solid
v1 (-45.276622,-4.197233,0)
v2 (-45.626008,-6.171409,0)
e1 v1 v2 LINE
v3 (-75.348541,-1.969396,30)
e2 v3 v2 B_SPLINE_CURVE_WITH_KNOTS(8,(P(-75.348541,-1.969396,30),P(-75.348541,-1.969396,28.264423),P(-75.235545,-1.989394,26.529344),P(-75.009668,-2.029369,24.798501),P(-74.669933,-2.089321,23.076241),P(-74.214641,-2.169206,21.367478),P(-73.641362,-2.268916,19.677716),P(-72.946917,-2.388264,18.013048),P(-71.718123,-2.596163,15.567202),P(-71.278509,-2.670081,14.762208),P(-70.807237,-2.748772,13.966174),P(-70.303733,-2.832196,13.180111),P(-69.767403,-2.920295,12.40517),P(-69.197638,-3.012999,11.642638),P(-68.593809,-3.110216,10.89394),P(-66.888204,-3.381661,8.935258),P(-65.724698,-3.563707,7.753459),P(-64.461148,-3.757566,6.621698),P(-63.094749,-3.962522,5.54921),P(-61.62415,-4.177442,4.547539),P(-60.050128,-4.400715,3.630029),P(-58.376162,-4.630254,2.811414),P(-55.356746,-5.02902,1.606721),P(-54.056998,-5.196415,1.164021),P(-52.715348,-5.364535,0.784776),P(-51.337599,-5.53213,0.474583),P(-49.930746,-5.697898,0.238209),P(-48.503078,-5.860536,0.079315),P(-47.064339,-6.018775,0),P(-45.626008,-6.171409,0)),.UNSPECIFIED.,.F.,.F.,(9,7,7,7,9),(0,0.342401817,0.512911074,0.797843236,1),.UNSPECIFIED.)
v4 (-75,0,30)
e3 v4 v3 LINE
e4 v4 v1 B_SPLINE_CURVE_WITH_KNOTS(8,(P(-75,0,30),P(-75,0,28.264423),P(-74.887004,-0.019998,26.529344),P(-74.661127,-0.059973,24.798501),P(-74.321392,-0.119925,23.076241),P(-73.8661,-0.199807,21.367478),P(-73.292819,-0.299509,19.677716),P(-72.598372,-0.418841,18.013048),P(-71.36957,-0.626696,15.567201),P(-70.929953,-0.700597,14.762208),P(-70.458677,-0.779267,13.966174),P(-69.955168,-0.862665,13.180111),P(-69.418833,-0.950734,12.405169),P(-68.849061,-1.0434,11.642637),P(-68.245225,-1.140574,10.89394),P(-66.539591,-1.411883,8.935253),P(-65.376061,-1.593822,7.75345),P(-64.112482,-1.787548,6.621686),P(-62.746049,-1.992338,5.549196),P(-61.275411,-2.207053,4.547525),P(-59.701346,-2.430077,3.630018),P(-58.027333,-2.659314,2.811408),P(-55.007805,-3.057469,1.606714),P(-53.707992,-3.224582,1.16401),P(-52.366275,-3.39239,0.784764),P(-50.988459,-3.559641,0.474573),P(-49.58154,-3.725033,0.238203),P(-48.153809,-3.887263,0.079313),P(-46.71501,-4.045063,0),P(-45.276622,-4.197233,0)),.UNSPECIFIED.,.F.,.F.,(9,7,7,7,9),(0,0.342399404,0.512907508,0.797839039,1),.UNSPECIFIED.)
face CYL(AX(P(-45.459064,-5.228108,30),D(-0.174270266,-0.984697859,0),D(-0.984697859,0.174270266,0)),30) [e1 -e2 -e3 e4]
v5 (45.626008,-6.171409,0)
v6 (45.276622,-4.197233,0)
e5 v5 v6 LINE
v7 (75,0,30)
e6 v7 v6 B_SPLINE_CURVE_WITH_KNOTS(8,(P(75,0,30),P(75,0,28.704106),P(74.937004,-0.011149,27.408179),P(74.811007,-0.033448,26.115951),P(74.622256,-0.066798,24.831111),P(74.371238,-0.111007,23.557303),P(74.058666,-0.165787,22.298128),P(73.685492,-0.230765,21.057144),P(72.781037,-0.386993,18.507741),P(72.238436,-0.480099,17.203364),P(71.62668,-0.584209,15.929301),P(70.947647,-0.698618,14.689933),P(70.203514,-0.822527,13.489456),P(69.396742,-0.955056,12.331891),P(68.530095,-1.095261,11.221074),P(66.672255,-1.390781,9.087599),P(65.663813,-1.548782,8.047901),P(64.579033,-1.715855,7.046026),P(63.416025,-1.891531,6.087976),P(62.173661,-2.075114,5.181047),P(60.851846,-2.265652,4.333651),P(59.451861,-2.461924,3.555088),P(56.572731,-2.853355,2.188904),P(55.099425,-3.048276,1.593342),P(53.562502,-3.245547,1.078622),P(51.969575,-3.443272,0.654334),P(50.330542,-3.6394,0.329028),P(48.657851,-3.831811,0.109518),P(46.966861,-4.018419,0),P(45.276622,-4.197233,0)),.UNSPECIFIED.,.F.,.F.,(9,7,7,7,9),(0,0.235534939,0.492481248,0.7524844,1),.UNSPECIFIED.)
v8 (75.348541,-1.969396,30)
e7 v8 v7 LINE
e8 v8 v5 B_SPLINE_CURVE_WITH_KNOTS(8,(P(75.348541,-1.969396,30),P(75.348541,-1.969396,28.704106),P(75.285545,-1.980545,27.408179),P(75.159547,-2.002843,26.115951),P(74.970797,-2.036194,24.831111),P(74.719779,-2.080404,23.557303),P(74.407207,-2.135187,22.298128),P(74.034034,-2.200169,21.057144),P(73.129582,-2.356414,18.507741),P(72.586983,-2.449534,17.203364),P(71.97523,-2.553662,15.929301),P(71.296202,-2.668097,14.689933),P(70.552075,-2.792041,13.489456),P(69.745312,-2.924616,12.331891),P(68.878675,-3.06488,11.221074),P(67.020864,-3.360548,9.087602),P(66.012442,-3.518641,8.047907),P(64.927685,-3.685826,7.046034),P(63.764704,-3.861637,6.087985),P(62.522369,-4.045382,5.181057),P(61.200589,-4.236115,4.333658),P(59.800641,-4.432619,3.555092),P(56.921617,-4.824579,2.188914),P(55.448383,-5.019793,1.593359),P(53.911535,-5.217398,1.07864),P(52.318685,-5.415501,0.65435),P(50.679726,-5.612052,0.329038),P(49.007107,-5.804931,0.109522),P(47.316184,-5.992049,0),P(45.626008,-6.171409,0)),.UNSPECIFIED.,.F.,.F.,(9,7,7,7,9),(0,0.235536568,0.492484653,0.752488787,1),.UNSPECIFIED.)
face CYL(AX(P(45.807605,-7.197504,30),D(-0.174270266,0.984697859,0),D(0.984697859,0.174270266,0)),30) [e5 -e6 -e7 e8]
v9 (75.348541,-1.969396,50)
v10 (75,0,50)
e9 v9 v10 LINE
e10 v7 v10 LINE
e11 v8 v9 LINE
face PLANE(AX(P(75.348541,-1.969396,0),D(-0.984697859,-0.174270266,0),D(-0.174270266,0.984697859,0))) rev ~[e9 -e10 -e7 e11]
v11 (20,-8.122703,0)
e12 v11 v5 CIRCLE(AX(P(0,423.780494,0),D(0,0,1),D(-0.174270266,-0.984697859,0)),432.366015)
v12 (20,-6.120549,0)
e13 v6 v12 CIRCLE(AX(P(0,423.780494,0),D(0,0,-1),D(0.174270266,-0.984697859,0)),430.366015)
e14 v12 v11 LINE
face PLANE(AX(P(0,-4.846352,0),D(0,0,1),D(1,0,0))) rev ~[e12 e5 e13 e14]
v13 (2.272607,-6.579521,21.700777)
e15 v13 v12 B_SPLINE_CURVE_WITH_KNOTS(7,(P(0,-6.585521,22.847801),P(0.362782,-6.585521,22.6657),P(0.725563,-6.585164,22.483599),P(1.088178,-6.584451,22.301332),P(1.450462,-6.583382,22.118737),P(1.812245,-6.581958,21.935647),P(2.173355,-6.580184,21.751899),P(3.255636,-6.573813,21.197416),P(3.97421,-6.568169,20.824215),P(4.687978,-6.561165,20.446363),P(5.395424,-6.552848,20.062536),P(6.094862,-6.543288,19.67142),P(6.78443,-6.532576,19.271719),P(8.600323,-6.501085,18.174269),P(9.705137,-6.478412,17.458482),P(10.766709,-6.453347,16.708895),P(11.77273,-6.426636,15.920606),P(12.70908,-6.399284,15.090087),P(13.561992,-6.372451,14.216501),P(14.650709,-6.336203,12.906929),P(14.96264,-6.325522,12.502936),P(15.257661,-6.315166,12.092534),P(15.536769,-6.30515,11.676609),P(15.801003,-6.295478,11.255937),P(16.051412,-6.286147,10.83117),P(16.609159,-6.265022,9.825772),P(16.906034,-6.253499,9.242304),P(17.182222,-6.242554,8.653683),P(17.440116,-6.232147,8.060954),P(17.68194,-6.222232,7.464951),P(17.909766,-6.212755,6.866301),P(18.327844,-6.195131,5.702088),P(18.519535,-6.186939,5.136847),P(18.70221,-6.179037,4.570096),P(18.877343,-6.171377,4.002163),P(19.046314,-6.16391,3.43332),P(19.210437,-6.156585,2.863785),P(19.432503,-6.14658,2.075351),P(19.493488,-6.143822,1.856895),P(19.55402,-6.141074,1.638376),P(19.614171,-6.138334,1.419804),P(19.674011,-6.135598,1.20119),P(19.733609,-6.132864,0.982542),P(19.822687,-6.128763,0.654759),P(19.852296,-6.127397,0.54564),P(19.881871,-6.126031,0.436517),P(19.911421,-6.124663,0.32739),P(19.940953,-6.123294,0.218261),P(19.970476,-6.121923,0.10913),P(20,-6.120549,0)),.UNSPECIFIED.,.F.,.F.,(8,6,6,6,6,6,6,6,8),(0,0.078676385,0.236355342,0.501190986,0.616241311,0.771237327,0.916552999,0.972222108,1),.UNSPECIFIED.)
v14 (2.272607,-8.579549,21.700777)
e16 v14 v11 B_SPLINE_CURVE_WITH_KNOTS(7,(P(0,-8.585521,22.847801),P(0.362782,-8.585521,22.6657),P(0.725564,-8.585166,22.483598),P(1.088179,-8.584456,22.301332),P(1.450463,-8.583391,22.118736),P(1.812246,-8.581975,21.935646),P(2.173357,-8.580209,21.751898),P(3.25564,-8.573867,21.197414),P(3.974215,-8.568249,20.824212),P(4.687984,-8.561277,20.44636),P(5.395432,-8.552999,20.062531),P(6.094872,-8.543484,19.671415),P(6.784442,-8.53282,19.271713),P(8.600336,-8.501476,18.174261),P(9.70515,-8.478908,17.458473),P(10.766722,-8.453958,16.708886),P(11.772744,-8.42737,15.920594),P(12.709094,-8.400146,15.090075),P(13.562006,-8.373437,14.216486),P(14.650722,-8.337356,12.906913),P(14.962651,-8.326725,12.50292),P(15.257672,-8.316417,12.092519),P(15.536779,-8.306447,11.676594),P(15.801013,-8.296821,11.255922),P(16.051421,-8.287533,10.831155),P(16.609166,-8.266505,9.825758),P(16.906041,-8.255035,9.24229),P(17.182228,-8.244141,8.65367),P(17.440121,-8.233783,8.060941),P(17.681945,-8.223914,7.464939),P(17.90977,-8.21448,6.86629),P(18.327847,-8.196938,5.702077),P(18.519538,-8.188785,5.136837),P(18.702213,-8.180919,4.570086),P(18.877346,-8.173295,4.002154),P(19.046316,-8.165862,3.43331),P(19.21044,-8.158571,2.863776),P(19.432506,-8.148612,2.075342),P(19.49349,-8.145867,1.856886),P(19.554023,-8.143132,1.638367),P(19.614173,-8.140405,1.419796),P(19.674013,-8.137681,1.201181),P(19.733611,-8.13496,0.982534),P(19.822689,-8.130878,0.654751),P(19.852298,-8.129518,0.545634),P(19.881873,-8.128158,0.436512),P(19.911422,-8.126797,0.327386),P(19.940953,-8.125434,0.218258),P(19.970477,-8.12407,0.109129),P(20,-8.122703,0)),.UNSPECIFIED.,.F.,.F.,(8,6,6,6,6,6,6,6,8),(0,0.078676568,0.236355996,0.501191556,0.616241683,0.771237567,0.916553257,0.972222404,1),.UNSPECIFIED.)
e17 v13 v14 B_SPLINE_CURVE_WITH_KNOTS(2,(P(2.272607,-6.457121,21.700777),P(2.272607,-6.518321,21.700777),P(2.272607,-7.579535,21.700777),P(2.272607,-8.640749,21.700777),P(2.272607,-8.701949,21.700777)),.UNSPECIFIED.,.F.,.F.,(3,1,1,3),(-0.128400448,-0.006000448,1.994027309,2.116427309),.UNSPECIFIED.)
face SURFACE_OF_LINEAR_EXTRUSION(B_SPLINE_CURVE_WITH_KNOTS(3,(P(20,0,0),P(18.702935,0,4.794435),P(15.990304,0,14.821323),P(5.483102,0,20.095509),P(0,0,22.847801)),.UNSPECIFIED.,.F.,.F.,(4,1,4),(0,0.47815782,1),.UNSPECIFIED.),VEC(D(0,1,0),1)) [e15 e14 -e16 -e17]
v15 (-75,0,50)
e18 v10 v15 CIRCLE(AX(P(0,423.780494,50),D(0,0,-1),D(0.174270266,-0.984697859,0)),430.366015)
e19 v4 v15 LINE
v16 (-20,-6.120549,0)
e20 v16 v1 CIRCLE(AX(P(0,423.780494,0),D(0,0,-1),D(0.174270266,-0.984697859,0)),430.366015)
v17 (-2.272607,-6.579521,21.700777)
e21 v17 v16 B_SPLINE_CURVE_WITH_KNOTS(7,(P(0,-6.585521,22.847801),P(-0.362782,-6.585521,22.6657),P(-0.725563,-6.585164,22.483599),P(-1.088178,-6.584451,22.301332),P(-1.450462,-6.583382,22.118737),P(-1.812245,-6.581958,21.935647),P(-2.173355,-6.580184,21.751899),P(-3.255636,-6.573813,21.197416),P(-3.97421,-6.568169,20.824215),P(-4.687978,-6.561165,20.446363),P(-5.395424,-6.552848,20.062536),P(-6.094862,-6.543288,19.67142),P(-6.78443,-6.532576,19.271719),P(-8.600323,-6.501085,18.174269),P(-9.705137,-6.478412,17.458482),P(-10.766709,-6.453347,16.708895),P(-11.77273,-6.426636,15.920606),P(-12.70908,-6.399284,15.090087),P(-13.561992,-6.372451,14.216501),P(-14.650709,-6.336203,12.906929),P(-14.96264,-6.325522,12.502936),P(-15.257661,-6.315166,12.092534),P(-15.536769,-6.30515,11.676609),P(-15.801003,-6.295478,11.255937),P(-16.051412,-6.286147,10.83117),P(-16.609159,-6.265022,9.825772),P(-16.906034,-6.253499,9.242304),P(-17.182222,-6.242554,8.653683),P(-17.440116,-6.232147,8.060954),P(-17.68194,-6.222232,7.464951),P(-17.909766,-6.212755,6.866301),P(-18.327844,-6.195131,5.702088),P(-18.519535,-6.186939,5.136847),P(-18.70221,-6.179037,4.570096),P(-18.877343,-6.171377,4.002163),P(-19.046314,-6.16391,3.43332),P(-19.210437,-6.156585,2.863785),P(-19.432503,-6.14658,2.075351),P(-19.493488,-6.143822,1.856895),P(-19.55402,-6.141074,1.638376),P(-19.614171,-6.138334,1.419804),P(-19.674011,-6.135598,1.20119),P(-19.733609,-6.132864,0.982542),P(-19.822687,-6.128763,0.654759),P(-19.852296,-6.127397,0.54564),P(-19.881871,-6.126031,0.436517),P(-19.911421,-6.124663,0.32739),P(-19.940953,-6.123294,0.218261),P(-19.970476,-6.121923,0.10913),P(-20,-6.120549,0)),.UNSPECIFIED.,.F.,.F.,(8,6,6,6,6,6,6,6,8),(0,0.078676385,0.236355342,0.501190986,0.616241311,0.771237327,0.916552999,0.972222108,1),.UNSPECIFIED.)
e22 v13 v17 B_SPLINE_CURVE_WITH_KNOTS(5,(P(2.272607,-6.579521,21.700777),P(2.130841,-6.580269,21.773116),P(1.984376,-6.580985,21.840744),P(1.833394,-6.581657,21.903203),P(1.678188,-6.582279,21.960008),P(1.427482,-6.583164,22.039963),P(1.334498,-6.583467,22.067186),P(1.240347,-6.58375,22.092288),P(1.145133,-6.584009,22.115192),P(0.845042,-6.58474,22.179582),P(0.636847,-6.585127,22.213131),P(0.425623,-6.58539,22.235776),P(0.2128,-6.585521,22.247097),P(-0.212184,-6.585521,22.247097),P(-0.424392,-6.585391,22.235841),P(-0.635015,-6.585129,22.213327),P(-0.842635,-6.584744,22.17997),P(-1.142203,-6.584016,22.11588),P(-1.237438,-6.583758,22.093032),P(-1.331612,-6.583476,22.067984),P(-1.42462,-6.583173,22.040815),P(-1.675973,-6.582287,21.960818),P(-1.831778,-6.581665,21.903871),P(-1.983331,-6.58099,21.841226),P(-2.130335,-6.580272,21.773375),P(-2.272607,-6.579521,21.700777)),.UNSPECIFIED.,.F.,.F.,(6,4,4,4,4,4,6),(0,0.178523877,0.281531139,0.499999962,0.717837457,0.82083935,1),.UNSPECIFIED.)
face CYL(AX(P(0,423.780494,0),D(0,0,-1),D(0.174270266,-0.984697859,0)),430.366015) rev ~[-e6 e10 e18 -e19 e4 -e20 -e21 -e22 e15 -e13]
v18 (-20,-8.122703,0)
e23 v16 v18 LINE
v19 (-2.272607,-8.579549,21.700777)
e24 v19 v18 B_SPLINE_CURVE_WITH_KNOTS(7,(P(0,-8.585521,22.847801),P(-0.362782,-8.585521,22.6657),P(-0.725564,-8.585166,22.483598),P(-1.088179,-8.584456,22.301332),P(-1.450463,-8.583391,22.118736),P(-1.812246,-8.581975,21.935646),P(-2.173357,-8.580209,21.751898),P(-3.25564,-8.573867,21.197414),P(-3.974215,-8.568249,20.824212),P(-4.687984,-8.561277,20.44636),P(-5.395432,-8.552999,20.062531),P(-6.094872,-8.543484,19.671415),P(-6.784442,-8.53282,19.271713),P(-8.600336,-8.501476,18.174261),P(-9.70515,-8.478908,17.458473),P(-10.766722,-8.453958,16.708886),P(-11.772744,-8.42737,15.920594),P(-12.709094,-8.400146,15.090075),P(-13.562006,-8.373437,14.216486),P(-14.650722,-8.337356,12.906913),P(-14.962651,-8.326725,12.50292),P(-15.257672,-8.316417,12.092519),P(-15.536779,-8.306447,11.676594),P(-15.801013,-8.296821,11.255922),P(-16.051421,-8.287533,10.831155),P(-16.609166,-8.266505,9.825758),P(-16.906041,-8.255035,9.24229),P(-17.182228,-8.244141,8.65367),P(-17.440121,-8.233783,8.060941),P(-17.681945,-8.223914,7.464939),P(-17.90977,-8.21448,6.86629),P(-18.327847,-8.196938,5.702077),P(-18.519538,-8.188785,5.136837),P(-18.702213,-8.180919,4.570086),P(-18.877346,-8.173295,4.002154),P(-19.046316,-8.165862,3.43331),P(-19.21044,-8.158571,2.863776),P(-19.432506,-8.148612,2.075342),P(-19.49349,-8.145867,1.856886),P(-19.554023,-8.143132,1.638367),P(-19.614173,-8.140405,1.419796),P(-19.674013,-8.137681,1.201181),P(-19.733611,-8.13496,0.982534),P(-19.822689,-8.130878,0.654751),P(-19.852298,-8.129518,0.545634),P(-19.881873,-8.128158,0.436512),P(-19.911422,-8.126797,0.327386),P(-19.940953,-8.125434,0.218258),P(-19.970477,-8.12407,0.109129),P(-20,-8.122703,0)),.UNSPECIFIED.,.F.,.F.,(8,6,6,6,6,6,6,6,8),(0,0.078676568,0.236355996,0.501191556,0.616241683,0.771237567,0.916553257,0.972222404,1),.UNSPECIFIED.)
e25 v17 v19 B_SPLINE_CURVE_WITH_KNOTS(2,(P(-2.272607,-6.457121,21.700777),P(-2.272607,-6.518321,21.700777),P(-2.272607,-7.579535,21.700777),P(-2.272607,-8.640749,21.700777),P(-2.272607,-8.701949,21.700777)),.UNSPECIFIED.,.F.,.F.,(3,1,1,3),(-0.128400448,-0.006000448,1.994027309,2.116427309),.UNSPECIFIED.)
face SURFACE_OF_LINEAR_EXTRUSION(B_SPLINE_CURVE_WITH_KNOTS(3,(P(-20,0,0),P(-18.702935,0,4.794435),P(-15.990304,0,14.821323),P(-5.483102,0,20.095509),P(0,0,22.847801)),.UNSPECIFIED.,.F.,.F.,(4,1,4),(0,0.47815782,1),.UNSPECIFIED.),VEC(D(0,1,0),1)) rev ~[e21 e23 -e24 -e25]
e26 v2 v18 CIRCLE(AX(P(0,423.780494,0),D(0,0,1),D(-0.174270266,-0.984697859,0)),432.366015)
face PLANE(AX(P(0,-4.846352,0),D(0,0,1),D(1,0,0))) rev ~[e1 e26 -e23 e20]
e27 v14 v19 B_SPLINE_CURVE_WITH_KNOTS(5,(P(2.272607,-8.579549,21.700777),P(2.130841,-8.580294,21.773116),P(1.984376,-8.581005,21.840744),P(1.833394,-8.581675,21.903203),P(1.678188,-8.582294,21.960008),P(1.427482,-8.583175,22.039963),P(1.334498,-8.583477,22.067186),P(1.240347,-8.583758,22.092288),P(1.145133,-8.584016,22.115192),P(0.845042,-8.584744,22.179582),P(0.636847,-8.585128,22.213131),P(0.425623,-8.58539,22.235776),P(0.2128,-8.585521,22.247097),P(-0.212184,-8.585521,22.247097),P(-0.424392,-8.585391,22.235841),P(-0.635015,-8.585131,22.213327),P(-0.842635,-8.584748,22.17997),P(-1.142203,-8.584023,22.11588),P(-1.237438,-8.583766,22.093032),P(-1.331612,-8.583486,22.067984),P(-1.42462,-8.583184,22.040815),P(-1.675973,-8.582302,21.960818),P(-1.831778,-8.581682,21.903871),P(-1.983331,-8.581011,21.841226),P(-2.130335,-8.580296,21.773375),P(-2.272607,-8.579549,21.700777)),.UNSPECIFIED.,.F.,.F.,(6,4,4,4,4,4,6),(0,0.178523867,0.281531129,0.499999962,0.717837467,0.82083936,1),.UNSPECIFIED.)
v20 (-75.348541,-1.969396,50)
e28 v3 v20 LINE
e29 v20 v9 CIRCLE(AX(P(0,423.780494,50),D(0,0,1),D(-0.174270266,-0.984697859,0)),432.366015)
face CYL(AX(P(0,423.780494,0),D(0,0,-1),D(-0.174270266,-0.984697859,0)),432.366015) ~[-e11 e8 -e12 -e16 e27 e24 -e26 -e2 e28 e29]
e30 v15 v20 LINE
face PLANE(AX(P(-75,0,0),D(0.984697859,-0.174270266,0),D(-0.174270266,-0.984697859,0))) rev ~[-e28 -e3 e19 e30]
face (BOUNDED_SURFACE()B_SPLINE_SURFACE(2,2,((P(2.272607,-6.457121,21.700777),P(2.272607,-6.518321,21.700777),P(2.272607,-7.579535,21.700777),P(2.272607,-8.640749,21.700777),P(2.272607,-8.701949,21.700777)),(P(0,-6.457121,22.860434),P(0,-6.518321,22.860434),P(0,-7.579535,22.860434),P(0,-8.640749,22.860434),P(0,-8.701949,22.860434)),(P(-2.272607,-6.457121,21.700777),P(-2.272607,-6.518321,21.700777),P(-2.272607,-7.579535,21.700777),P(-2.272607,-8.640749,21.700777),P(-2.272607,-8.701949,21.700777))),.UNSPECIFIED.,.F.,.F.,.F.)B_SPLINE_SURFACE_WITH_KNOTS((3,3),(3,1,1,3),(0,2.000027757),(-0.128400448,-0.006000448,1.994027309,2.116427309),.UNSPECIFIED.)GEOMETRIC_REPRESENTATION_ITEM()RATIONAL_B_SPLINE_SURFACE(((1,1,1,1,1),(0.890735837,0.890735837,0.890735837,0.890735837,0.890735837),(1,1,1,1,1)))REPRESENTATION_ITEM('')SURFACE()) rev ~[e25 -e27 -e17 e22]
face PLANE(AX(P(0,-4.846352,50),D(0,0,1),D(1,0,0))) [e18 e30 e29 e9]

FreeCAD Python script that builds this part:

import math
import FreeCAD as App
import Part
import Sketcher
Q = App.Units.Quantity


def edges_at(feature, points):
    """Names of the edges that pass closest to the given points."""
    edges = feature.Shape.Edges
    near = lambda p: min(range(len(edges)), key=lambda i: edges[i].distToShape(Part.Vertex(*p))[0])
    return sorted({f"Edge{near(p) + 1}" for p in points})

doc = App.newDocument("Part")
params = doc.addObject("Spreadsheet::Sheet", "Params")
for row, (alias, value) in enumerate([
    ("sketch1_length", "2 mm"),
    ("pad1_length", "50 mm"),
    ("fillet_radius", "30 mm"),
    ("pocket1_length", "9.585521 mm"),
    ("fillet2_radius", "5 mm"),
], start=1):
    params.set(f"A{row}", alias)
    params.set(f"B{row}", "=" + value)
    params.setAlias(f"B{row}", alias)

body = doc.addObject("PartDesign::Body", "Body")

# Sketch on XY plane
sketch1 = doc.addObject("Sketcher::SketchObject", "Sketch")
body.addObject(sketch1)
sketch1.AttachmentSupport = (doc.XY_Plane, [""])
sketch1.MapMode = "FlatFace"
sketch1.addGeometry([
    Part.ArcOfCircle(Part.Circle(App.Vector(0, 423.780494, 0), App.Vector(0, 0, 1), 430.366015), math.radians(-100.036195), math.radians(-79.963805)),
    Part.LineSegment(App.Vector(-75, 0, 0), App.Vector(-75.348541, -1.969396, 0)),
    Part.ArcOfCircle(Part.Circle(App.Vector(0, 423.780494, 0), App.Vector(0, 0, 1), 432.366015), math.radians(-100.036195), math.radians(-79.963805)),
    Part.LineSegment(App.Vector(75.348541, -1.969396, 0), App.Vector(75, 0, 0)),
], False)
sketch1.addConstraint([
    Sketcher.Constraint("Coincident", 0, 1, 1, 1),
    Sketcher.Constraint("Coincident", 1, 2, 2, 1),
    Sketcher.Constraint("Coincident", 2, 2, 3, 1),
    Sketcher.Constraint("Coincident", 3, 2, 0, 2),
    Sketcher.Constraint("Coincident", 2, 3, 0, 3),
    Sketcher.Constraint("Symmetric", 0, 1, 3, 2, -1, 1),
    Sketcher.Constraint("Symmetric", 1, 2, 2, 2, -2),
    Sketcher.Constraint("Distance", 1, Q("2 mm")),
    Sketcher.Constraint("DistanceX", -1, 1, 3, 2, Q("75 mm")),
    Sketcher.Constraint("Radius", 0, Q("430.366015 mm")),
    Sketcher.Constraint("DistanceX", 1, 2, -1, 1, Q("75.348541 mm")),
])
sketch1.setExpression("Constraints[7]", "Params.sketch1_length")
pad1 = doc.addObject("PartDesign::Pad", "Pad")
body.addObject(pad1)
pad1.Profile = sketch1
pad1.setExpression("Length", "Params.pad1_length")
doc.recompute()

fillet = doc.addObject("PartDesign::Fillet", "Fillet")
body.addObject(fillet)
fillet.Base = (pad1, edges_at(pad1, [(75.174, -0.985, 0), (-75.174, -0.985, 0)]))
fillet.setExpression("Radius", "Params.fillet_radius")

# Sketch on XZ plane
sketch2 = doc.addObject("Sketcher::SketchObject", "Sketch001")
body.addObject(sketch2)
sketch2.AttachmentSupport = (doc.XZ_Plane, [""])
sketch2.MapMode = "FlatFace"
sketch2.addGeometry([
    Part.LineSegment(App.Vector(-20, 0, 0), App.Vector(20, 0, 0)),
    Part.BSplineCurve([App.Vector(20, 0, 0), App.Vector(18.702935, 4.794435, 0), App.Vector(15.990304, 14.821323, 0), App.Vector(5.483102, 20.095509, 0), App.Vector(0, 22.847801, 0)], [4, 1, 4], [0, 0.47815782, 1], False, 3, [1, 1, 1, 1, 1], False),
    Part.BSplineCurve([App.Vector(-20, 0, 0), App.Vector(-18.702935, 4.794435, 0), App.Vector(-15.990304, 14.821323, 0), App.Vector(-5.483102, 20.095509, 0), App.Vector(0, 22.847801, 0)], [4, 1, 4], [0, 0.47815782, 1], False, 3, [1, 1, 1, 1, 1], False),
], False)
sketch2.addConstraint([
    Sketcher.Constraint("Block", 1),
    Sketcher.Constraint("Block", 2),
    Sketcher.Constraint("Coincident", 0, 2, 1, 1),
    Sketcher.Constraint("Coincident", 2, 1, 0, 1),
])
pocket1 = doc.addObject("PartDesign::Pocket", "Pocket")
body.addObject(pocket1)
pocket1.Profile = sketch2
pocket1.setExpression("Length", "Params.pocket1_length")
pocket1.Reversed = True
doc.recompute()

fillet2 = doc.addObject("PartDesign::Fillet", "Fillet001")
body.addObject(fillet2)
fillet2.Base = (pocket1, edges_at(pocket1, [(0, -7.586, 22.848)]))
fillet2.setExpression("Radius", "Params.fillet2_radius")

doc.recompute()
